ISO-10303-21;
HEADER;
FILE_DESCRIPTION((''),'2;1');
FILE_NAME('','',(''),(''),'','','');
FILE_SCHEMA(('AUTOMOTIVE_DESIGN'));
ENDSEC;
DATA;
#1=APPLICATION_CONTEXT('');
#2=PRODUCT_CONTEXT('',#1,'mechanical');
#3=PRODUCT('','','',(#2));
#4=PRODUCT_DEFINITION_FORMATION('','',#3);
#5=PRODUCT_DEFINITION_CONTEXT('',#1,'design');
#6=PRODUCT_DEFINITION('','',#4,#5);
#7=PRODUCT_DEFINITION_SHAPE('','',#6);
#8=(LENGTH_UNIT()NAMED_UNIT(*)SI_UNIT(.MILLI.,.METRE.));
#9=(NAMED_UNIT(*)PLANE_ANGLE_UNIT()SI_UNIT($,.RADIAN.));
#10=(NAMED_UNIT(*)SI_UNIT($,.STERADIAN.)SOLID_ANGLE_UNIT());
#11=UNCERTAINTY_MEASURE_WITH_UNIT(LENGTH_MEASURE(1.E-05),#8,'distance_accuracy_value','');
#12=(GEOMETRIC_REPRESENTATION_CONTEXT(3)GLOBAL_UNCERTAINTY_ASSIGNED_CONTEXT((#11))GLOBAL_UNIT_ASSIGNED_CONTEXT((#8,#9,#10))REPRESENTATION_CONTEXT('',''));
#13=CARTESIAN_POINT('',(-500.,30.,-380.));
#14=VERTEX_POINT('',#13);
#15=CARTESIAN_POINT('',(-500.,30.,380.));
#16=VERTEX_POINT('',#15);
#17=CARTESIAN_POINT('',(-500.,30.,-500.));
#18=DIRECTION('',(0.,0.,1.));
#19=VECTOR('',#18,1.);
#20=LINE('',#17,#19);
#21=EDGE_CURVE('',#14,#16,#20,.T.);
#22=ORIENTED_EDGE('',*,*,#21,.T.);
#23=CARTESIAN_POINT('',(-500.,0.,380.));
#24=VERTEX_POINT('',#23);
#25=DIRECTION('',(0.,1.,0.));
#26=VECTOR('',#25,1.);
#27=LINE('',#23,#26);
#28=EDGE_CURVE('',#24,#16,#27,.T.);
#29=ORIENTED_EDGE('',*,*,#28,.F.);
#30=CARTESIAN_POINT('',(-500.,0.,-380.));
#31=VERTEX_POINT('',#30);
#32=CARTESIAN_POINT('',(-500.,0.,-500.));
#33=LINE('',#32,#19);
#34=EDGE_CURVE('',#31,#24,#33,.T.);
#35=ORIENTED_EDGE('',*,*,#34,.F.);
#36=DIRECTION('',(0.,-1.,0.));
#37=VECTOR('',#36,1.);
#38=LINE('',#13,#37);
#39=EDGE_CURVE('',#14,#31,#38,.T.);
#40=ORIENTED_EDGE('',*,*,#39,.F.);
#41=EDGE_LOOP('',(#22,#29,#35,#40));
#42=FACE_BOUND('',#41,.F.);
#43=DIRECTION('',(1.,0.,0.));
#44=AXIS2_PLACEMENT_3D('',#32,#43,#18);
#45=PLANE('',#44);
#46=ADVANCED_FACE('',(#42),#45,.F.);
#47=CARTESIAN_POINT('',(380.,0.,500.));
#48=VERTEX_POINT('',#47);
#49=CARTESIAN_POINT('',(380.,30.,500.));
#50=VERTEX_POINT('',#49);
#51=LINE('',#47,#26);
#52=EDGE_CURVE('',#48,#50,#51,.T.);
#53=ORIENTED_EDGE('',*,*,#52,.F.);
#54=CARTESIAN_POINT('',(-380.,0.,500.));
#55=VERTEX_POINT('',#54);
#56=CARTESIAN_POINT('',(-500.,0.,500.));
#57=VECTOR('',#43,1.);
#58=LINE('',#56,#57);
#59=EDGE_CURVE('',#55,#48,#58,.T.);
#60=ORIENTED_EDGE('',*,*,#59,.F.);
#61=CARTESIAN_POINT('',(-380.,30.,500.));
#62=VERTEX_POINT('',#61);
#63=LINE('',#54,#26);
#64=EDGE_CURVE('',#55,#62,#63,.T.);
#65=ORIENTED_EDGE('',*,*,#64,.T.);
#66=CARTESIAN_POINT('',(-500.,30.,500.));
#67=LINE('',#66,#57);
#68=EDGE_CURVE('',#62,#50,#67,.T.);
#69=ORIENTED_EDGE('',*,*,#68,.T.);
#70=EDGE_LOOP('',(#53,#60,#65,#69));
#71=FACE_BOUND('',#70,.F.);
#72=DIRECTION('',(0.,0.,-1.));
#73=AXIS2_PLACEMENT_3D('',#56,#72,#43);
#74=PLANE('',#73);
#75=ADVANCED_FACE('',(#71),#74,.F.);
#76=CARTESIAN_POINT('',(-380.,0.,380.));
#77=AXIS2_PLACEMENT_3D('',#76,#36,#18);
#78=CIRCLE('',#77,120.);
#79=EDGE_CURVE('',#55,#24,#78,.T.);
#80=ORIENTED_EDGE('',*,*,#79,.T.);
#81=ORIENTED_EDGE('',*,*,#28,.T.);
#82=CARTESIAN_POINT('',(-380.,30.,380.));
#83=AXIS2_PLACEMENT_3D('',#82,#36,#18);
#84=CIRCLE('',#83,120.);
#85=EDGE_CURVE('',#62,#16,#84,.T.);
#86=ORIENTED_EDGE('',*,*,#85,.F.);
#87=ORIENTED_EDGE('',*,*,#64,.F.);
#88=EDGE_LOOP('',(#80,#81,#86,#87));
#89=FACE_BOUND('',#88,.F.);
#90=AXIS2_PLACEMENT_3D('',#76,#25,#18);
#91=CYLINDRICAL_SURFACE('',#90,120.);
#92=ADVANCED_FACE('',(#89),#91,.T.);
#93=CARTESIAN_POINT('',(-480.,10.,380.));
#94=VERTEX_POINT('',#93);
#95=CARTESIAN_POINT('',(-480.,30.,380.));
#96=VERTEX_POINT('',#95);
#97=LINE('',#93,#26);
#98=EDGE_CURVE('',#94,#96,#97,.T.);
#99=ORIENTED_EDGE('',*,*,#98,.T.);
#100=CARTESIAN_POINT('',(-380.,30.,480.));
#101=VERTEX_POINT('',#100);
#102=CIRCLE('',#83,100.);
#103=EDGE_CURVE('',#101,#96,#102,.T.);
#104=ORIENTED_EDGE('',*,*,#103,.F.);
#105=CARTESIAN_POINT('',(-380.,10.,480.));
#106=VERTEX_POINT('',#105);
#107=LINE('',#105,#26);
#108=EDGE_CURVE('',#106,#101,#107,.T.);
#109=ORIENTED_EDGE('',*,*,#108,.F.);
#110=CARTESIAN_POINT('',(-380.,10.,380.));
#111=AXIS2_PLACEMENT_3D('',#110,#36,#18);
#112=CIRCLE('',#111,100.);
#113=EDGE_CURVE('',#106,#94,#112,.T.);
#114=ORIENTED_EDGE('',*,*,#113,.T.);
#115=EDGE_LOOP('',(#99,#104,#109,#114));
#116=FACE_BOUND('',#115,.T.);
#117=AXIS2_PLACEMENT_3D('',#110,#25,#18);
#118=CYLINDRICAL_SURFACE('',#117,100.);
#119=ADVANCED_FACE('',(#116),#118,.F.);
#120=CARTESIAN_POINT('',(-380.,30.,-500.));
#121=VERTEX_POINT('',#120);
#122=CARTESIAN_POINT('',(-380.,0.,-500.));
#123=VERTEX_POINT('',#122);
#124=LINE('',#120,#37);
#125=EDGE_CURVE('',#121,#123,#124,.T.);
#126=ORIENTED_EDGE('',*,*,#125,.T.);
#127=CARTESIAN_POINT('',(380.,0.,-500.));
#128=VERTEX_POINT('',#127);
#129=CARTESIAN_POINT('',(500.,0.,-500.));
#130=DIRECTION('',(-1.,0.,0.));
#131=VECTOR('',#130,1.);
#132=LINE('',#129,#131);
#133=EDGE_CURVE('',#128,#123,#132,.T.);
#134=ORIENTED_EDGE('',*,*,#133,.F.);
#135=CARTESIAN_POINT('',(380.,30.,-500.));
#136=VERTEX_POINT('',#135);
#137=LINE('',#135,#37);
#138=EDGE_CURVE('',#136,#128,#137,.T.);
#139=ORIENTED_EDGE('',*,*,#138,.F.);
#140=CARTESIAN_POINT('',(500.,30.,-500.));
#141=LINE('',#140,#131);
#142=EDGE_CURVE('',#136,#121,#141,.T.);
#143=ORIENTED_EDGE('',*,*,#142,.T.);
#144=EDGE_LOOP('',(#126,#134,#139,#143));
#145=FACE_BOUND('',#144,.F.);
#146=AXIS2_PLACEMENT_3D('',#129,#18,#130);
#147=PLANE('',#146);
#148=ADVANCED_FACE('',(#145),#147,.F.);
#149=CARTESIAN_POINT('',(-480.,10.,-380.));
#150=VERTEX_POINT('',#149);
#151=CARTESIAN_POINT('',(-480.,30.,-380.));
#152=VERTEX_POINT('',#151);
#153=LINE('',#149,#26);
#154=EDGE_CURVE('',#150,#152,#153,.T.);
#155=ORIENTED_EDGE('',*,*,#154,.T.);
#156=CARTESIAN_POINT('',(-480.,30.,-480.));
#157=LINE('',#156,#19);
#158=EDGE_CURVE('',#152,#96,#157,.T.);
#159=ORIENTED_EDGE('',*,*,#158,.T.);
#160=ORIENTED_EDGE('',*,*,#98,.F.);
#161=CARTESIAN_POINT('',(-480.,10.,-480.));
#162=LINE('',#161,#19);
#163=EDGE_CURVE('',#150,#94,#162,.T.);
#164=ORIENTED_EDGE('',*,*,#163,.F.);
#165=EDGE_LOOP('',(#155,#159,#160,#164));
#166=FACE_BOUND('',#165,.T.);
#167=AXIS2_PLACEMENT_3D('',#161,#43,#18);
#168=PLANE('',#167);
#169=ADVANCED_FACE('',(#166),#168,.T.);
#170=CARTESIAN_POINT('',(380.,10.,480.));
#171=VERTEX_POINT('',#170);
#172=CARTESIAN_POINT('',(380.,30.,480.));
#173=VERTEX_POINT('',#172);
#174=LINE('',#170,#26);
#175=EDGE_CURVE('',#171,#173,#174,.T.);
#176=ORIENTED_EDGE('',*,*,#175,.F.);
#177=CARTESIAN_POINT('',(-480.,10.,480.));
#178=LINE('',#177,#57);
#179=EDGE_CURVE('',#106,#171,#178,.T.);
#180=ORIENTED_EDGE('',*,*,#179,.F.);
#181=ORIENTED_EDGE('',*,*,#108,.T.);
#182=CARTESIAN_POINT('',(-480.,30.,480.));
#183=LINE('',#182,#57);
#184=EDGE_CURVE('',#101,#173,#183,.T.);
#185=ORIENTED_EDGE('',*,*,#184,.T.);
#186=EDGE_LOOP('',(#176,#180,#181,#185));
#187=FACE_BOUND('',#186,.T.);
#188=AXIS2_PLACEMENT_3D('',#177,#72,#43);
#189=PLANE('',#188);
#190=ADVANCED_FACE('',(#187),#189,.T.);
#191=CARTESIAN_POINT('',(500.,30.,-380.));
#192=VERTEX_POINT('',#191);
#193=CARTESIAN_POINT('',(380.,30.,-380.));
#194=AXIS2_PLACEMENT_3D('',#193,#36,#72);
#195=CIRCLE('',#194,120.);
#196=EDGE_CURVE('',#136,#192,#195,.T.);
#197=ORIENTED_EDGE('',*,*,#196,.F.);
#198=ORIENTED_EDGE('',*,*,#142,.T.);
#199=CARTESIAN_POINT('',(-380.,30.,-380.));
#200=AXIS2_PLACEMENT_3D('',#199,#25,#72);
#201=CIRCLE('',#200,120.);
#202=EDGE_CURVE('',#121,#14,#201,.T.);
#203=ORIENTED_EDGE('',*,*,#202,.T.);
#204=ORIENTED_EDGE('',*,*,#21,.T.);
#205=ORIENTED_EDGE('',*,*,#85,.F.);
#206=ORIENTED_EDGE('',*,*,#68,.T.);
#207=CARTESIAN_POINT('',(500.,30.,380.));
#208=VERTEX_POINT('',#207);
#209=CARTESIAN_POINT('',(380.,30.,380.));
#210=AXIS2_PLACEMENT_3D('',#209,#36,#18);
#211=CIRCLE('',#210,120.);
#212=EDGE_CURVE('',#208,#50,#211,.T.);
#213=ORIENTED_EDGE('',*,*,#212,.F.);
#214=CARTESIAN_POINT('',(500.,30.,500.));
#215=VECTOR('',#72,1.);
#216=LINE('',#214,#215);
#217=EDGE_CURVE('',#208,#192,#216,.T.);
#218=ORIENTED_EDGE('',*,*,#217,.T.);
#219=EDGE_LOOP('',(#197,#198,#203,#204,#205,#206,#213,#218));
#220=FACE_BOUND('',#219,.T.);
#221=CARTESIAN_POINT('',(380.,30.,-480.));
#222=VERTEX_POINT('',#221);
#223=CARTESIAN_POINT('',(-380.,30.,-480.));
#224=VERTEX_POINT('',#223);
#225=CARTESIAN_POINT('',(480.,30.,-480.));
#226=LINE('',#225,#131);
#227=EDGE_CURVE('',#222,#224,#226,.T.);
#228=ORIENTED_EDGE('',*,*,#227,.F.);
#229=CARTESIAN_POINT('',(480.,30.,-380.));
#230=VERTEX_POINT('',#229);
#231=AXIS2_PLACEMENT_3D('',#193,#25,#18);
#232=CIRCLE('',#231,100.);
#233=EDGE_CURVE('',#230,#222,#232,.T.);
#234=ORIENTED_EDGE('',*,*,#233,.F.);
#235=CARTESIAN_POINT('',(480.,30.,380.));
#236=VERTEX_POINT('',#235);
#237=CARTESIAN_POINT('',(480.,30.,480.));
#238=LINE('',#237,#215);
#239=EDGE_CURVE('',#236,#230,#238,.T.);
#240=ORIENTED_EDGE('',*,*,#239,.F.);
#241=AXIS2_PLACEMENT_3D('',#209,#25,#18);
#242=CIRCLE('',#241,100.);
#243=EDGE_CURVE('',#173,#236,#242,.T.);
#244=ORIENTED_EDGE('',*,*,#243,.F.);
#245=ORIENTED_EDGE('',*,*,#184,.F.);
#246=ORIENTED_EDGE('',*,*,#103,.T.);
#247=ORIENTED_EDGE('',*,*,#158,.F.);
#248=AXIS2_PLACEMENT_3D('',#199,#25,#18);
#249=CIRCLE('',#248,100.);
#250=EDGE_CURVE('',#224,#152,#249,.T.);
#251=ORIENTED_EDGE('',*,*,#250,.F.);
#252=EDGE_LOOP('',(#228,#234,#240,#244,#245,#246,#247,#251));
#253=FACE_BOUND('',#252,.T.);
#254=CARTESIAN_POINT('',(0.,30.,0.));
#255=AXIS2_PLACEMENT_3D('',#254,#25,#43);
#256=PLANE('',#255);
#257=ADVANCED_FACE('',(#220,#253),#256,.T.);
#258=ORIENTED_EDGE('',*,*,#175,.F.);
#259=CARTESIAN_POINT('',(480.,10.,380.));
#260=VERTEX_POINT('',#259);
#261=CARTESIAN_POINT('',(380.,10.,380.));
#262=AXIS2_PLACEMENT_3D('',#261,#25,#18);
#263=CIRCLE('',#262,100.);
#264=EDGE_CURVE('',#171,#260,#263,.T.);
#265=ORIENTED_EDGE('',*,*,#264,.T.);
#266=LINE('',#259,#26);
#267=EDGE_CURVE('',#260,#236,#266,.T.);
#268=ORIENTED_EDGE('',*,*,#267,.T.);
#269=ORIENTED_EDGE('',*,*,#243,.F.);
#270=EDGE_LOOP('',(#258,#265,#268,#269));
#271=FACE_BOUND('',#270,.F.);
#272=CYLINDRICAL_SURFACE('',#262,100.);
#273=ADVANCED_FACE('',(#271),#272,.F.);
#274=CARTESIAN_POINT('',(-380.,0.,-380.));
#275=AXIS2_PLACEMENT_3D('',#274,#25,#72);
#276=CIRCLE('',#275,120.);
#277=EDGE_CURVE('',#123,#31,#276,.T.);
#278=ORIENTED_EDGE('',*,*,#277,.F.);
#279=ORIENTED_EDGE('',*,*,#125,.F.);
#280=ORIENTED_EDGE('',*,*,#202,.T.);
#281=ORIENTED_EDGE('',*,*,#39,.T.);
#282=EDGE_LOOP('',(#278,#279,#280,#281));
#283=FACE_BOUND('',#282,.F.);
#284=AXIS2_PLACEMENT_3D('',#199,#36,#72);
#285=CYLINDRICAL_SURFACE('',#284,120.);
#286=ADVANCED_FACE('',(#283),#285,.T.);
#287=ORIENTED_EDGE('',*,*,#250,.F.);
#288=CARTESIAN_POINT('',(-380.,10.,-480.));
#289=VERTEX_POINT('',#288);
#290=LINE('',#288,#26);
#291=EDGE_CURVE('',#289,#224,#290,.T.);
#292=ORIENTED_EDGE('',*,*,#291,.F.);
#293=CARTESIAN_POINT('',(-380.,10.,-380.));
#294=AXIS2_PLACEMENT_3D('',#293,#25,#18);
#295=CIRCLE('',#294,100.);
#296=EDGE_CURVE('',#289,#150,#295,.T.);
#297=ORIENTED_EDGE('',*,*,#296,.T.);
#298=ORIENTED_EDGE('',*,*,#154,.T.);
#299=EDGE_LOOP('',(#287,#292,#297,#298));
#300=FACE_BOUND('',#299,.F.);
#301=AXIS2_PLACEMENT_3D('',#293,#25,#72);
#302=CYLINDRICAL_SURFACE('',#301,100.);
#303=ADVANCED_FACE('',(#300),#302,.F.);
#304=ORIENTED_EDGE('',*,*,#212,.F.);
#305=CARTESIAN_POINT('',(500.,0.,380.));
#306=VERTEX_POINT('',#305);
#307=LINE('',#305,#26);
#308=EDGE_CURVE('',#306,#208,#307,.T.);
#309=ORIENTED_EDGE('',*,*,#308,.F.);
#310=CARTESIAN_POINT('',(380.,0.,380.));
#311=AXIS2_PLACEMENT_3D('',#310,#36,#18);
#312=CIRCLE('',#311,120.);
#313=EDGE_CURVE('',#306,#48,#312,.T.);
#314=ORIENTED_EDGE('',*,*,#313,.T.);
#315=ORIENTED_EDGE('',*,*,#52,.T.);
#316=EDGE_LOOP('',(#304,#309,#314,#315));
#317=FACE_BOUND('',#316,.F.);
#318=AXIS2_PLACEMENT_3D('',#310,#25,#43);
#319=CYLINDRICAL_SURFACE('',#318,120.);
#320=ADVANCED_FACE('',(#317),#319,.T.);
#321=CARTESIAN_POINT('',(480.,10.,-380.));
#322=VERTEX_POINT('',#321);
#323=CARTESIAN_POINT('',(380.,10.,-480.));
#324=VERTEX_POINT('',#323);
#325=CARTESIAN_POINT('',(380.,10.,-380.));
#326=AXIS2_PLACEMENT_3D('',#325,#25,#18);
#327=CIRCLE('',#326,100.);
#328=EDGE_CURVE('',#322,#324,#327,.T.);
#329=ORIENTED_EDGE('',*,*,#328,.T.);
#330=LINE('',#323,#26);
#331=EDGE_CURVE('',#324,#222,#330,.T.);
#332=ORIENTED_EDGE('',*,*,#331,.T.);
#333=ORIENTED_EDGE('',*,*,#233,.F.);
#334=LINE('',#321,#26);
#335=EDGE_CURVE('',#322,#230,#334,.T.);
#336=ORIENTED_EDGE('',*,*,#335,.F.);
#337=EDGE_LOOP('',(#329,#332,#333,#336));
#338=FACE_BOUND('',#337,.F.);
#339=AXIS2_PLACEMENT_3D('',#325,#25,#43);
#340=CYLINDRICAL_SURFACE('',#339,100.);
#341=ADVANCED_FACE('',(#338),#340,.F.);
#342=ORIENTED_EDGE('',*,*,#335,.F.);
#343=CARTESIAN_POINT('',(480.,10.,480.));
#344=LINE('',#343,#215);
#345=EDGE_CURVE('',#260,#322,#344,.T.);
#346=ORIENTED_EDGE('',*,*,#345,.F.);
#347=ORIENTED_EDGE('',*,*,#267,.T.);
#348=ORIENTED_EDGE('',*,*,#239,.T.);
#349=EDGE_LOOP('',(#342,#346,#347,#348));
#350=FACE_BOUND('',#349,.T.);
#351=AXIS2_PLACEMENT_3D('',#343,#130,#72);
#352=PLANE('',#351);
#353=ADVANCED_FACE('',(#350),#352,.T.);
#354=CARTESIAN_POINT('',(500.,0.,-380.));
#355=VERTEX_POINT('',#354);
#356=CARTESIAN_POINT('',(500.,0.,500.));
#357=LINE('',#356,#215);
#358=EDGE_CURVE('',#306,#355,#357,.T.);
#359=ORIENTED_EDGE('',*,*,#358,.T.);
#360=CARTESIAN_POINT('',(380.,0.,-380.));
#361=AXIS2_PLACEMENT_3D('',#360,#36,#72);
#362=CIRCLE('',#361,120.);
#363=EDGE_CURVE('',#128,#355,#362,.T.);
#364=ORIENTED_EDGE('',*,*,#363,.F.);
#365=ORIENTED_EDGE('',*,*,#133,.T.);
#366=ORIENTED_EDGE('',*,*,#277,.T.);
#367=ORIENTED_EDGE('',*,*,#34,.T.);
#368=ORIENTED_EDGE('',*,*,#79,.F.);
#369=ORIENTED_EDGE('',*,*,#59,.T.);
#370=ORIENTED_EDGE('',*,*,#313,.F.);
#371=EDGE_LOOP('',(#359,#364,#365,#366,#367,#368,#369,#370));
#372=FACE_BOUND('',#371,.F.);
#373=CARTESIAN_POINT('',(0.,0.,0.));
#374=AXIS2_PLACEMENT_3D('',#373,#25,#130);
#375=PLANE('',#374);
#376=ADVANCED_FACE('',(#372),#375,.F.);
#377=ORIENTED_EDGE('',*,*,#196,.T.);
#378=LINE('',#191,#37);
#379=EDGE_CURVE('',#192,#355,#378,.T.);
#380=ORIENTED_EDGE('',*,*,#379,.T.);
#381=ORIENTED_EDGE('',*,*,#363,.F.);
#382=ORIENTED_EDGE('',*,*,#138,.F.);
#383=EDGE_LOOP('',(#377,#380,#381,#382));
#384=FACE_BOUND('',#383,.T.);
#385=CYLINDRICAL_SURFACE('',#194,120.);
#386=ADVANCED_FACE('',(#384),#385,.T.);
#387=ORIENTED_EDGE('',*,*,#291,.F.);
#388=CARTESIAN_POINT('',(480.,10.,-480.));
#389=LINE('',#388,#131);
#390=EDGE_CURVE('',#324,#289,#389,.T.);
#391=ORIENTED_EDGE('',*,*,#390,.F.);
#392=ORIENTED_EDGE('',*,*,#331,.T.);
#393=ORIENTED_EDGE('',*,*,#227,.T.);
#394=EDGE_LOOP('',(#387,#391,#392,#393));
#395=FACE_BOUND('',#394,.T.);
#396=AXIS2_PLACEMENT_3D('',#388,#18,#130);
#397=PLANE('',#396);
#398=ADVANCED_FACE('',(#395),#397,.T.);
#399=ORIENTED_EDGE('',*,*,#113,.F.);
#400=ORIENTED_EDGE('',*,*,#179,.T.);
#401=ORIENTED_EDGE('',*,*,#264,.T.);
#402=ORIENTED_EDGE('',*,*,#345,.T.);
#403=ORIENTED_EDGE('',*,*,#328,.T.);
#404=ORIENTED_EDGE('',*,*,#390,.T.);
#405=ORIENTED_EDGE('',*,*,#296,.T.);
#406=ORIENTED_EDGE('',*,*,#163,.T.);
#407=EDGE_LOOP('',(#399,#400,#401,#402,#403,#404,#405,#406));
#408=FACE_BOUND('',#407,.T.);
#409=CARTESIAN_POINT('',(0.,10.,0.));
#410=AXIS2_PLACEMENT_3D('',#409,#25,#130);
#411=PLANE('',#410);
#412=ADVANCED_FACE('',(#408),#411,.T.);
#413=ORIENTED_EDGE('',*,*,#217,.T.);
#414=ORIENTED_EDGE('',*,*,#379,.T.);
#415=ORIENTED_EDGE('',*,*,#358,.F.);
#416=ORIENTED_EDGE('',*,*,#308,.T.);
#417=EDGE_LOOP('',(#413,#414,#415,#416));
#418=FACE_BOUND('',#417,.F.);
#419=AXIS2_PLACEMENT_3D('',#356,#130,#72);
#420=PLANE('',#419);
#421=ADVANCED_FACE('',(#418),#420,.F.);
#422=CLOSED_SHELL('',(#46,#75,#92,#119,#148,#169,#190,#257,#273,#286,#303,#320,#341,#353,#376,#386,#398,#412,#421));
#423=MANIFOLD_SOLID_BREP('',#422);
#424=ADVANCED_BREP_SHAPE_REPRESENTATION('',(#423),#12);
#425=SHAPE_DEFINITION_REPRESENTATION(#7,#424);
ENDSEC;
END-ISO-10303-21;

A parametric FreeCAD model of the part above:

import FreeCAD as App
import Part
import Sketcher

V = App.Vector
Q = App.Units.Quantity


def edges_at(feature, points):
    """Names of the edges that pass closest to the given points."""
    edges = feature.Shape.Edges
    near = lambda p: min(range(len(edges)), key=lambda i: edges[i].distToShape(Part.Vertex(*p))[0])
    return sorted({f"Edge{near(p) + 1}" for p in points})

doc = App.newDocument("Part")
params = doc.addObject("Spreadsheet::Sheet", "Params")
for row, (alias, value) in enumerate([
    ("sketch1_width", "1000 mm"),
    ("pad1_length", "10 mm"),
    ("sketch2_width", "1000 mm"),
    ("pad2_length", "20 mm"),
    ("fillet_radius", "100 mm"),
    ("fillet2_radius", "120 mm"),
], start=1):
    params.set(f"A{row}", alias)
    params.set(f"B{row}", "=" + value)
    params.setAlias(f"B{row}", alias)

body = doc.addObject("PartDesign::Body", "Body")

# Sketch on XZ plane
sketch1 = body.newObject("Sketcher::SketchObject", "Sketch")
sketch1.AttachmentSupport = (doc.getObject("XZ_Plane"), [""])
sketch1.MapMode = "FlatFace"
sketch1.addGeometry([
    Part.LineSegment(V(-500, -500, 0), V(-500, 500, 0)),
    Part.LineSegment(V(-500, 500, 0), V(500, 500, 0)),
    Part.LineSegment(V(500, 500, 0), V(500, -500, 0)),
    Part.LineSegment(V(500, -500, 0), V(-500, -500, 0)),
], False)
sketch1.addConstraint([
    Sketcher.Constraint("Coincident", 0, 2, 1, 1),
    Sketcher.Constraint("Coincident", 1, 2, 2, 1),
    Sketcher.Constraint("Coincident", 2, 2, 3, 1),
    Sketcher.Constraint("Coincident", 3, 2, 0, 1),
    Sketcher.Constraint("Vertical", 0),
    Sketcher.Constraint("Horizontal", 1),
    Sketcher.Constraint("Vertical", 2),
    Sketcher.Constraint("Horizontal", 3),
    Sketcher.Constraint("Symmetric", 0, 2, 2, 2, -1, 1),
    Sketcher.Constraint("Equal", 3, 0),
    Sketcher.Constraint("DistanceX", 1, 1, 1, 2, Q("1000 mm")),
])
sketch1.setExpression("Constraints[10]", "Params.sketch1_width")
pad1 = body.newObject("PartDesign::Pad", "Pad")
pad1.Profile = sketch1
pad1.setExpression("Length", "Params.pad1_length")
pad1.Reversed = True

# Sketch on XZ plane
sketch2 = body.newObject("Sketcher::SketchObject", "Sketch001")
sketch2.AttachmentSupport = (doc.getObject("XZ_Plane"), [""])
sketch2.MapMode = "FlatFace"
sketch2.AttachmentOffset = App.Placement(V(0, 0, -10), App.Rotation())
sketch2.addGeometry([
    Part.LineSegment(V(500, -500, 0), V(-500, -500, 0)),  # 0
    Part.LineSegment(V(-500, -500, 0), V(-500, 500, 0)),  # 1
    Part.LineSegment(V(-500, 500, 0), V(500, 500, 0)),  # 2
    Part.LineSegment(V(500, 500, 0), V(500, -500, 0)),  # 3
    Part.LineSegment(V(480, 480, 0), V(-480, 480, 0)),  # 4
    Part.LineSegment(V(-480, 480, 0), V(-480, -480, 0)),  # 5
    Part.LineSegment(V(-480, -480, 0), V(480, -480, 0)),  # 6
    Part.LineSegment(V(480, -480, 0), V(480, 480, 0)),  # 7
], False)
sketch2.addConstraint([
    Sketcher.Constraint("Coincident", 0, 2, 1, 1),
    Sketcher.Constraint("Coincident", 1, 2, 2, 1),
    Sketcher.Constraint("Coincident", 2, 2, 3, 1),
    Sketcher.Constraint("Coincident", 3, 2, 0, 1),
    Sketcher.Constraint("Coincident", 4, 2, 5, 1),
    Sketcher.Constraint("Coincident", 5, 2, 6, 1),
    Sketcher.Constraint("Coincident", 6, 2, 7, 1),
    Sketcher.Constraint("Coincident", 7, 2, 4, 1),
    Sketcher.Constraint("Horizontal", 0),
    Sketcher.Constraint("Vertical", 1),
    Sketcher.Constraint("Horizontal", 2),
    Sketcher.Constraint("Vertical", 3),
    Sketcher.Constraint("Horizontal", 4),
    Sketcher.Constraint("Vertical", 5),
    Sketcher.Constraint("Horizontal", 6),
    Sketcher.Constraint("Vertical", 7),
    Sketcher.Constraint("Symmetric", 0, 2, 2, 2, -1, 1),
    Sketcher.Constraint("Symmetric", 4, 2, 6, 2, -1, 1),
    Sketcher.Constraint("Equal", 2, 1),
    Sketcher.Constraint("Equal", 6, 5),
    Sketcher.Constraint("DistanceX", 1, 2, 4, 2, Q("20 mm")),
    Sketcher.Constraint("DistanceX", 0, 2, 0, 1, Q("1000 mm")),
])
sketch2.setExpression("Constraints[21]", "Params.sketch2_width")
pad2 = body.newObject("PartDesign::Pad", "Pad001")
pad2.Profile = sketch2
pad2.setExpression("Length", "Params.pad2_length")
pad2.Reversed = True
doc.recompute()

fillet = body.newObject("PartDesign::Fillet", "Fillet")
fillet.Base = (pad2, edges_at(pad2, [
    (-480, 20, 480),
    (-480, 20, -480),
    (480, 20, -480),
    (480, 20, 480),
]))
fillet.setExpression("Radius", "Params.fillet_radius")
doc.recompute()

fillet2 = body.newObject("PartDesign::Fillet", "Fillet001")
fillet2.Base = (fillet, edges_at(fillet, [
    (-500, 15, 500),
    (-500, 15, -500),
    (500, 15, -500),
    (500, 15, 500),
]))
fillet2.setExpression("Radius", "Params.fillet2_radius")

doc.recompute()
